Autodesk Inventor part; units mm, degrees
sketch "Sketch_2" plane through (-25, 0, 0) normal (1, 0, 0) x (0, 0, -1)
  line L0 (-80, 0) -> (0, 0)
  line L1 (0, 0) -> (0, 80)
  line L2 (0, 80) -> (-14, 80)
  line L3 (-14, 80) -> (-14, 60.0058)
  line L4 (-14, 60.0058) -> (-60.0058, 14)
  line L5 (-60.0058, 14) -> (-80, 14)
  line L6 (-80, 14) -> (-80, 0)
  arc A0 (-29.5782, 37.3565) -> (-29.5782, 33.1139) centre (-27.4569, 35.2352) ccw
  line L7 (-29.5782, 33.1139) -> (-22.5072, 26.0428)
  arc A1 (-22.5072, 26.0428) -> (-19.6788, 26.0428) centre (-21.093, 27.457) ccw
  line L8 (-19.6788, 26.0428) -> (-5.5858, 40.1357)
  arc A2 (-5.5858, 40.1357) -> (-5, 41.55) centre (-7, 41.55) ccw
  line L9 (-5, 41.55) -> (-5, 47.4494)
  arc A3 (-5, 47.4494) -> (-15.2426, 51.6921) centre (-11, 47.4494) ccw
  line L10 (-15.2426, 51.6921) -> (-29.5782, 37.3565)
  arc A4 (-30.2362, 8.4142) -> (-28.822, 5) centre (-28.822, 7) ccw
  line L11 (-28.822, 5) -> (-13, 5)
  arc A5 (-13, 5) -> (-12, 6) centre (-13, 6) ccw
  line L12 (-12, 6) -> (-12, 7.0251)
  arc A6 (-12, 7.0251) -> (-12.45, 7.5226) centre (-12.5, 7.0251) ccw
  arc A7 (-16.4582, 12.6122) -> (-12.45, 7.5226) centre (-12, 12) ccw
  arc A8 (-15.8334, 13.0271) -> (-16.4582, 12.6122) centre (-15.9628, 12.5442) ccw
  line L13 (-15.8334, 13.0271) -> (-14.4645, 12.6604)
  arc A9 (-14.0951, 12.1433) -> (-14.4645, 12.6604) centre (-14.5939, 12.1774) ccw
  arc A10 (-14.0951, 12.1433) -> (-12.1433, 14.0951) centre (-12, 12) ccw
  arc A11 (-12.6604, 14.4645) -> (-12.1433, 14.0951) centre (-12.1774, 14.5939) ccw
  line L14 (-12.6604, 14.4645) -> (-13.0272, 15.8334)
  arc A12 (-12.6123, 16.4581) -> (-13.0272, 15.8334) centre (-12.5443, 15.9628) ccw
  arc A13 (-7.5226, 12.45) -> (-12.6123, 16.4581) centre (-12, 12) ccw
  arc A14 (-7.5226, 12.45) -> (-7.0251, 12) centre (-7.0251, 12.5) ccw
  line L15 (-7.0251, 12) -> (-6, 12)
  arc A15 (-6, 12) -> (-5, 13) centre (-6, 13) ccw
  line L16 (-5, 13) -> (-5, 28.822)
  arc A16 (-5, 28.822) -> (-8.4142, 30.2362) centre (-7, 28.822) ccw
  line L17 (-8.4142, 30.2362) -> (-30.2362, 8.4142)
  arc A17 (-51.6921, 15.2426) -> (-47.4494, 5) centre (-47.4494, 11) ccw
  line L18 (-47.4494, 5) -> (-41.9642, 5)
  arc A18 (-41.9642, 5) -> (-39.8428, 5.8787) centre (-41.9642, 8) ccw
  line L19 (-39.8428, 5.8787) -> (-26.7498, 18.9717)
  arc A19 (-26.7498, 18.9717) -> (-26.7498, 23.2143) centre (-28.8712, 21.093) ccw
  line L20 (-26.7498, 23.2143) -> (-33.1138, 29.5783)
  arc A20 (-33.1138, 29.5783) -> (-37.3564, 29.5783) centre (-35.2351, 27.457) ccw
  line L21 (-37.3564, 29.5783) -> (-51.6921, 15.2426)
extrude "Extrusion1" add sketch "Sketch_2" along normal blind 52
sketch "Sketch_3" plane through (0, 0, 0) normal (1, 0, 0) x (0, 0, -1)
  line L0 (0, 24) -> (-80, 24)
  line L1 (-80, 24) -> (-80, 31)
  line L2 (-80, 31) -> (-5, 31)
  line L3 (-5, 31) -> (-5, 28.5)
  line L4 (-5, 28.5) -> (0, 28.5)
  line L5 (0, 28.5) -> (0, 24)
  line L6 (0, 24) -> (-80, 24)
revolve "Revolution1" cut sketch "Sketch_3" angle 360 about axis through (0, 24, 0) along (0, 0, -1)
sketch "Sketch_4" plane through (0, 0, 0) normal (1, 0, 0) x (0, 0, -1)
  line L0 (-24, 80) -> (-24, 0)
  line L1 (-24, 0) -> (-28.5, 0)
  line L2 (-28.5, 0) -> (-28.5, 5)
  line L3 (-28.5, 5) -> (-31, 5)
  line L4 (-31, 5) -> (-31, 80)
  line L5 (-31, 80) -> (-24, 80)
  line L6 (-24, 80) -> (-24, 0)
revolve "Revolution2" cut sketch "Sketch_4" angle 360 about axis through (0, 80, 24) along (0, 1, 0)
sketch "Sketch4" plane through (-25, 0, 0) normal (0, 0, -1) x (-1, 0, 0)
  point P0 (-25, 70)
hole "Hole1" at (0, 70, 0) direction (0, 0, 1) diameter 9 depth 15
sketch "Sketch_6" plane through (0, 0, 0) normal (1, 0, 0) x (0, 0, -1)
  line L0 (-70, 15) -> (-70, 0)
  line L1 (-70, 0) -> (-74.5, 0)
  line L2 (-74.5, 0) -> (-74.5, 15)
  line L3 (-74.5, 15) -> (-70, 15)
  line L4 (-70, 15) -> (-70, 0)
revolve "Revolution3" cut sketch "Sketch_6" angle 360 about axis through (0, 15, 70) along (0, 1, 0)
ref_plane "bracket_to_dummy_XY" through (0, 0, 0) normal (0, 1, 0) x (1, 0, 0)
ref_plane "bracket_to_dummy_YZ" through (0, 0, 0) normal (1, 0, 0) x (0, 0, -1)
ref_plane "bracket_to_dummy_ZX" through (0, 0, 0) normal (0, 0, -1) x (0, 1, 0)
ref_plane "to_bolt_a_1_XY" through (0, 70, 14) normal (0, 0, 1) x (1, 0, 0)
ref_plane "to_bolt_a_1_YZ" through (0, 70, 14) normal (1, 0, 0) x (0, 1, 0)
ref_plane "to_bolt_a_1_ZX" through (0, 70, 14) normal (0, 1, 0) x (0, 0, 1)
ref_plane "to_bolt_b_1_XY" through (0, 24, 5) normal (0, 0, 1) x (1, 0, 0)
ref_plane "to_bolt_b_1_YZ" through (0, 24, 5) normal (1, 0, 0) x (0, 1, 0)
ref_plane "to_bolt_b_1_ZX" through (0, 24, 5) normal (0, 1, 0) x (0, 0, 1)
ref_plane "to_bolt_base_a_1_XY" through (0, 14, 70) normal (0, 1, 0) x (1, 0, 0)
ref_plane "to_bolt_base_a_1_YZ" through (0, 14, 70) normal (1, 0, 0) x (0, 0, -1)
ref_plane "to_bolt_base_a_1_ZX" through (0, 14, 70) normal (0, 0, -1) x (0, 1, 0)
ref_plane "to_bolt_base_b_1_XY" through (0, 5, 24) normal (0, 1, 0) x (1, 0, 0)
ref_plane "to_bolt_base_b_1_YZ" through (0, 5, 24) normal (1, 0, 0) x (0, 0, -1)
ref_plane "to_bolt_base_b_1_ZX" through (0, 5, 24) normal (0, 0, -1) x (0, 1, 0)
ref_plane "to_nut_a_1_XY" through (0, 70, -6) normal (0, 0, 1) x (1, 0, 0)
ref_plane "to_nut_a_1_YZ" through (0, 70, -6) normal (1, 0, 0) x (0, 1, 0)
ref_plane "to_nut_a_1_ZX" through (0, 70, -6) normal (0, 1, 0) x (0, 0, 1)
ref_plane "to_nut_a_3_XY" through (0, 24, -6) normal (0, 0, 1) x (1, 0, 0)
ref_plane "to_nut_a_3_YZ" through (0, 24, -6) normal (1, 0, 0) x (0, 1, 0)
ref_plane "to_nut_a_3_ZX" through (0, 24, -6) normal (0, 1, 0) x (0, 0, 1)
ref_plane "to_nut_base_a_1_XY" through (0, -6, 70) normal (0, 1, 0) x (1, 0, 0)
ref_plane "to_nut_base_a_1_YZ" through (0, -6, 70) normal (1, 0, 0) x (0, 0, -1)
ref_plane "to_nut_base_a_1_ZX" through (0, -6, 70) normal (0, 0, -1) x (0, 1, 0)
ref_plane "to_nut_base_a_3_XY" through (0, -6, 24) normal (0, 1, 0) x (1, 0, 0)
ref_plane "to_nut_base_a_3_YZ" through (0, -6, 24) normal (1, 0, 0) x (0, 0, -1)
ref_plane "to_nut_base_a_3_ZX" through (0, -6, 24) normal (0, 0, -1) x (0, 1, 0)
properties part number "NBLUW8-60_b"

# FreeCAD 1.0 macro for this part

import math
import FreeCAD as App
import Part
import Sketcher
Q = App.Units.Quantity

doc = App.newDocument("Part")
params = doc.addObject("Spreadsheet::Sheet", "Params")
for row, (alias, value) in enumerate([
    ("sketch1_radius", "6 mm"),
    ("sketch1_radius2", "3 mm"),
    ("sketch1_radius3", "2 mm"),
    ("sketch1_radius4", "1 mm"),
    ("sketch1_radius5", "0.5 mm"),
    ("pad1_length", "52 mm"),
    ("sketch2_width", "7 mm"),
    ("sketch2_height", "80 mm"),
    ("sketch2_height2", "5 mm"),
    ("sketch2_width2", "4.5 mm"),
    ("groove_angle", "360 deg"),
    ("sketch3_width", "80 mm"),
    ("sketch3_width2", "75 mm"),
    ("sketch3_height", "7 mm"),
    ("sketch3_height2", "2.5 mm"),
    ("groove2_angle", "360 deg"),
    ("sketch4_diameter", "9 mm"),
    ("hole_diameter", "9 mm"),
    ("hole_depth", "15 mm"),
    ("sketch5_width", "15 mm"),
    ("sketch5_height", "4.5 mm"),
    ("groove3_angle", "360 deg"),
], start=1):
    params.set(f"A{row}", alias)
    params.set(f"B{row}", "=" + value)
    params.setAlias(f"B{row}", alias)

body = doc.addObject("PartDesign::Body", "Body")

# Sketch on YZ plane
sketch1 = body.newObject("Sketcher::SketchObject", "Sketch")
sketch1.AttachmentSupport = (doc.getObject("YZ_Plane"), [""])
sketch1.MapMode = "FlatFace"
sketch1.AttachmentOffset = App.Placement(App.Vector(0, 0, -25), App.Rotation())
sketch1.addGeometry(Part.LineSegment(App.Vector(14, 80, 0), App.Vector(0, 80, 0)), False)
sketch1.addGeometry(Part.LineSegment(App.Vector(0, 80, 0), App.Vector(0, 0, 0)), False)
sketch1.addGeometry(Part.LineSegment(App.Vector(0, 0, 0), App.Vector(80, 0, 0)), False)
sketch1.addGeometry(Part.LineSegment(App.Vector(80, 0, 0), App.Vector(80, 14, 0)), False)
sketch1.addGeometry(Part.LineSegment(App.Vector(80, 14, 0), App.Vector(60.01, 14, 0)), False)
sketch1.addGeometry(Part.LineSegment(App.Vector(60.01, 14, 0), App.Vector(14, 60.01, 0)), False)
sketch1.addGeometry(Part.LineSegment(App.Vector(14, 60.01, 0), App.Vector(14, 80, 0)), False)
sketch1.addGeometry(Part.ArcOfCircle(Part.Circle(App.Vector(11, 47.45, 0), App.Vector(0, 0, 1), 6), math.radians(45), math.radians(180)), False)
sketch1.addGeometry(Part.LineSegment(App.Vector(15.24, 51.69, 0), App.Vector(29.58, 37.36, 0)), False)
sketch1.addGeometry(Part.ArcOfCircle(Part.Circle(App.Vector(27.46, 35.24, 0), App.Vector(0, 0, 1), 3), math.radians(-45), math.radians(45)), False)
sketch1.addGeometry(Part.LineSegment(App.Vector(29.58, 33.11, 0), App.Vector(23.21, 26.75, 0)), False)
sketch1.addGeometry(Part.ArcOfCircle(Part.Circle(App.Vector(21.09, 28.87, 0), App.Vector(0, 0, 1), 3), math.radians(-135), math.radians(-45)), False)
sketch1.addGeometry(Part.LineSegment(App.Vector(18.97, 26.75, 0), App.Vector(5.88, 39.84, 0)), False)
sketch1.addGeometry(Part.ArcOfCircle(Part.Circle(App.Vector(8, 41.96, 0), App.Vector(0, 0, 1), 3), math.radians(180), math.radians(225)), False)
sketch1.addGeometry(Part.LineSegment(App.Vector(5, 41.96, 0), App.Vector(5, 47.45, 0)), False)
sketch1.addGeometry(Part.ArcOfCircle(Part.Circle(App.Vector(7, 28.82, 0), App.Vector(0, 0, 1), 2), math.radians(45), math.radians(180)), False)
sketch1.addGeometry(Part.LineSegment(App.Vector(8.41, 30.24, 0), App.Vector(30.24, 8.41, 0)), False)
sketch1.addGeometry(Part.ArcOfCircle(Part.Circle(App.Vector(28.82, 7, 0), App.Vector(0, 0, 1), 2), math.radians(-90), math.radians(45)), False)
sketch1.addGeometry(Part.LineSegment(App.Vector(28.82, 5, 0), App.Vector(13, 5, 0)), False)
sketch1.addGeometry(Part.ArcOfCircle(Part.Circle(App.Vector(13, 6, 0), App.Vector(0, 0, 1), 1), math.radians(180), math.radians(270)), False)
sketch1.addGeometry(Part.LineSegment(App.Vector(12, 6, 0), App.Vector(12, 7.03, 0)), False)
sketch1.addGeometry(Part.ArcOfCircle(Part.Circle(App.Vector(12.5, 7.03, 0), App.Vector(0, 0, 1), 0.5), math.radians(96), math.radians(180)), False)
sketch1.addGeometry(Part.ArcOfCircle(Part.Circle(App.Vector(12, 12, 0), App.Vector(0, 0, 1), 4.5), math.radians(-84), math.radians(8)), False)
sketch1.addGeometry(Part.ArcOfCircle(Part.Circle(App.Vector(15.96, 12.54, 0), App.Vector(0, 0, 1), 0.5), math.radians(8), math.radians(105)), False)
sketch1.addGeometry(Part.LineSegment(App.Vector(15.83, 13.03, 0), App.Vector(14.46, 12.66, 0)), False)
sketch1.addGeometry(Part.ArcOfCircle(Part.Circle(App.Vector(14.59, 12.18, 0), App.Vector(0, 0, 1), 0.5), math.radians(105), math.radians(184)), False)
sketch1.addGeometry(Part.ArcOfCircle(Part.Circle(App.Vector(12, 12, 0), App.Vector(0, 0, 1), 2.1), math.radians(86), math.radians(364)), False)
sketch1.addGeometry(Part.ArcOfCircle(Part.Circle(App.Vector(12.18, 14.59, 0), App.Vector(0, 0, 1), 0.5), math.radians(-94), math.radians(-15)), False)
sketch1.addGeometry(Part.LineSegment(App.Vector(12.66, 14.46, 0), App.Vector(13.03, 15.83, 0)), False)
sketch1.addGeometry(Part.ArcOfCircle(Part.Circle(App.Vector(12.54, 15.96, 0), App.Vector(0, 0, 1), 0.5), math.radians(-15), math.radians(82)), False)
sketch1.addGeometry(Part.ArcOfCircle(Part.Circle(App.Vector(12, 12, 0), App.Vector(0, 0, 1), 4.5), math.radians(82), math.radians(174)), False)
sketch1.addGeometry(Part.ArcOfCircle(Part.Circle(App.Vector(7.03, 12.5, 0), App.Vector(0, 0, 1), 0.5), math.radians(-90), math.radians(-6)), False)
sketch1.addGeometry(Part.LineSegment(App.Vector(7.03, 12, 0), App.Vector(6, 12, 0)), False)
sketch1.addGeometry(Part.ArcOfCircle(Part.Circle(App.Vector(6, 13, 0), App.Vector(0, 0, 1), 1), math.radians(180), math.radians(270)), False)
sketch1.addGeometry(Part.LineSegment(App.Vector(5, 13, 0), App.Vector(5, 28.82, 0)), False)
sketch1.addGeometry(Part.ArcOfCircle(Part.Circle(App.Vector(35.24, 27.46, 0), App.Vector(0, 0, 1), 3), math.radians(45), math.radians(135)), False)
sketch1.addGeometry(Part.LineSegment(App.Vector(37.36, 29.58, 0), App.Vector(51.69, 15.24, 0)), False)
sketch1.addGeometry(Part.ArcOfCircle(Part.Circle(App.Vector(47.45, 11, 0), App.Vector(0, 0, 1), 6), math.radians(-90), math.radians(45)), False)
sketch1.addGeometry(Part.LineSegment(App.Vector(47.45, 5, 0), App.Vector(41.55, 5, 0)), False)
sketch1.addGeometry(Part.ArcOfCircle(Part.Circle(App.Vector(41.55, 7, 0), App.Vector(0, 0, 1), 2), math.radians(-135), math.radians(-90)), False)
sketch1.addGeometry(Part.LineSegment(App.Vector(40.14, 5.59, 0), App.Vector(26.04, 19.68, 0)), False)
sketch1.addGeometry(Part.ArcOfCircle(Part.Circle(App.Vector(27.46, 21.09, 0), App.Vector(0, 0, 1), 2), math.radians(135), math.radians(225)), False)
sketch1.addGeometry(Part.LineSegment(App.Vector(26.04, 22.51, 0), App.Vector(33.11, 29.58, 0)), False)
sketch1.addConstraint(Sketcher.Constraint("Coincident", 0, 2, 1, 1))
sketch1.addConstraint(Sketcher.Constraint("Coincident", 1, 2, 2, 1))
sketch1.addConstraint(Sketcher.Constraint("Coincident", 2, 2, 3, 1))
sketch1.addConstraint(Sketcher.Constraint("Coincident", 3, 2, 4, 1))
sketch1.addConstraint(Sketcher.Constraint("Coincident", 4, 2, 5, 1))
sketch1.addConstraint(Sketcher.Constraint("Coincident", 5, 2, 6, 1))
sketch1.addConstraint(Sketcher.Constraint("Coincident", 6, 2, 0, 1))
sketch1.addConstraint(Sketcher.Constraint("Tangent", 7, 1, 8, 1))
sketch1.addConstraint(Sketcher.Constraint("Tangent", 8, 2, 9, 2))
sketch1.addConstraint(Sketcher.Constraint("Tangent", 9, 1, 10, 1))
sketch1.addConstraint(Sketcher.Constraint("Tangent", 10, 2, 11, 2))
sketch1.addConstraint(Sketcher.Constraint("Tangent", 11, 1, 12, 1))
sketch1.addConstraint(Sketcher.Constraint("Tangent", 12, 2, 13, 2))
sketch1.addConstraint(Sketcher.Constraint("Tangent", 13, 1, 14, 1))
sketch1.addConstraint(Sketcher.Constraint("Tangent", 14, 2, 7, 2))
sketch1.addConstraint(Sketcher.Constraint("Tangent", 15, 1, 16, 1))
sketch1.addConstraint(Sketcher.Constraint("Tangent", 16, 2, 17, 2))
sketch1.addConstraint(Sketcher.Constraint("Tangent", 17, 1, 18, 1))
sketch1.addConstraint(Sketcher.Constraint("Tangent", 18, 2, 19, 2))
sketch1.addConstraint(Sketcher.Constraint("Tangent", 19, 1, 20, 1))
sketch1.addConstraint(Sketcher.Constraint("Tangent", 20, 2, 21, 2))
sketch1.addConstraint(Sketcher.Constraint("Tangent", 21, 1, 22, 1))
sketch1.addConstraint(Sketcher.Constraint("Tangent", 22, 2, 23, 1))
sketch1.addConstraint(Sketcher.Constraint("Tangent", 23, 2, 24, 1))
sketch1.addConstraint(Sketcher.Constraint("Tangent", 24, 2, 25, 1))
sketch1.addConstraint(Sketcher.Constraint("Tangent", 25, 2, 26, 2))
sketch1.addConstraint(Sketcher.Constraint("Tangent", 26, 1, 27, 1))
sketch1.addConstraint(Sketcher.Constraint("Tangent", 27, 2, 28, 1))
sketch1.addConstraint(Sketcher.Constraint("Tangent", 28, 2, 29, 1))
sketch1.addConstraint(Sketcher.Constraint("Tangent", 29, 2, 30, 1))
sketch1.addConstraint(Sketcher.Constraint("Tangent", 30, 2, 31, 2))
sketch1.addConstraint(Sketcher.Constraint("Tangent", 31, 1, 32, 1))
sketch1.addConstraint(Sketcher.Constraint("Tangent", 32, 2, 33, 2))
sketch1.addConstraint(Sketcher.Constraint("Tangent", 33, 1, 34, 1))
sketch1.addConstraint(Sketcher.Constraint("Tangent", 34, 2, 15, 2))
sketch1.addConstraint(Sketcher.Constraint("Tangent", 35, 1, 36, 1))
sketch1.addConstraint(Sketcher.Constraint("Tangent", 36, 2, 37, 2))
sketch1.addConstraint(Sketcher.Constraint("Tangent", 37, 1, 38, 1))
sketch1.addConstraint(Sketcher.Constraint("Tangent", 38, 2, 39, 2))
sketch1.addConstraint(Sketcher.Constraint("Tangent", 39, 1, 40, 1))
sketch1.addConstraint(Sketcher.Constraint("Tangent", 40, 2, 41, 2))
sketch1.addConstraint(Sketcher.Constraint("Tangent", 41, 1, 42, 1))
sketch1.addConstraint(Sketcher.Constraint("Tangent", 42, 2, 35, 2))
sketch1.addConstraint(Sketcher.Constraint("Horizontal", 0))
sketch1.addConstraint(Sketcher.Constraint("Vertical", 1))
sketch1.addConstraint(Sketcher.Constraint("Horizontal", 2))
sketch1.addConstraint(Sketcher.Constraint("Vertical", 3))
sketch1.addConstraint(Sketcher.Constraint("Horizontal", 4))
sketch1.addConstraint(Sketcher.Constraint("Vertical", 6))
sketch1.addConstraint(Sketcher.Constraint("Vertical", 14))
sketch1.addConstraint(Sketcher.Constraint("Horizontal", 18))
sketch1.addConstraint(Sketcher.Constraint("Vertical", 20))
sketch1.addConstraint(Sketcher.Constraint("Horizontal", 32))
sketch1.addConstraint(Sketcher.Constraint("Vertical", 34))
sketch1.addConstraint(Sketcher.Constraint("Horizontal", 38))
sketch1.addConstraint(Sketcher.Constraint("Coincident", 1, 2, -1, 1))
sketch1.addConstraint(Sketcher.Constraint("Coincident", 26, 3, 22, 3))
sketch1.addConstraint(Sketcher.Constraint("Coincident", 30, 3, 22, 3))
sketch1.addConstraint(Sketcher.Constraint("Equal", 9, 11))
sketch1.addConstraint(Sketcher.Constraint("Equal", 11, 13))
sketch1.addConstraint(Sketcher.Constraint("Equal", 15, 17))
sketch1.addConstraint(Sketcher.Constraint("Equal", 21, 23))
sketch1.addConstraint(Sketcher.Constraint("Equal", 23, 25))
sketch1.addConstraint(Sketcher.Constraint("Equal", 25, 27))
sketch1.addConstraint(Sketcher.Constraint("Equal", 27, 29))
sketch1.addConstraint(Sketcher.Constraint("Equal", 22, 30))
sketch1.addConstraint(Sketcher.Constraint("Equal", 29, 31))
sketch1.addConstraint(Sketcher.Constraint("Equal", 19, 33))
sketch1.addConstraint(Sketcher.Constraint("Equal", 13, 35))
sketch1.addConstraint(Sketcher.Constraint("Equal", 7, 37))
sketch1.addConstraint(Sketcher.Constraint("Equal", 17, 39))
sketch1.addConstraint(Sketcher.Constraint("Equal", 39, 41))
sketch1.addConstraint(Sketcher.Constraint("Parallel", 5, 8))
sketch1.addConstraint(Sketcher.Constraint("Perpendicular", 8, 10))
sketch1.addConstraint(Sketcher.Constraint("Perpendicular", 10, 12))
sketch1.addConstraint(Sketcher.Constraint("Parallel", 12, 16))
sketch1.addConstraint(Sketcher.Constraint("Parallel", 16, 36))
sketch1.addConstraint(Sketcher.Constraint("Parallel", 36, 40))
sketch1.addConstraint(Sketcher.Constraint("Perpendicular", 40, 42))
sketch1.addConstraint(Sketcher.Constraint("Horizontal", 17, 3, 39, 3))
sketch1.addConstraint(Sketcher.Constraint("Horizontal", 10, 2, 11, 1))
sketch1.addConstraint(Sketcher.Constraint("Horizontal", 30, 3, 31, 1))
sketch1.addConstraint(Sketcher.Constraint("Vertical", 9, 3, 41, 3))
sketch1.addConstraint(Sketcher.Constraint("Vertical", 30, 3, 19, 1))
sketch1.addConstraint(Sketcher.Constraint("Vertical", 14, 2, 33, 1))
sketch1.addConstraint(Sketcher.Constraint("Equal", 2, 1))
sketch1.addConstraint(Sketcher.Constraint("Equal", 0, 3))
sketch1.addConstraint(Sketcher.Constraint("Equal", 32, 20))
sketch1.addConstraint(Sketcher.Constraint("Equal", 24, 28))
sketch1.addConstraint(Sketcher.Constraint("Equal", 8, 36))
sketch1.addConstraint(Sketcher.Constraint("Radius", 7, Q("6 mm")))
sketch1.addConstraint(Sketcher.Constraint("Radius", 9, Q("3 mm")))
sketch1.addConstraint(Sketcher.Constraint("Radius", 15, Q("2 mm")))
sketch1.addConstraint(Sketcher.Constraint("Radius", 19, Q("1 mm")))
sketch1.addConstraint(Sketcher.Constraint("Radius", 21, Q("0.5 mm")))
sketch1.addConstraint(Sketcher.Constraint("Radius", 22, Q("4.5 mm")))
sketch1.addConstraint(Sketcher.Constraint("Radius", 26, Q("2.1 mm")))
sketch1.addConstraint(Sketcher.Constraint("DistanceX", 0, 2, 0, 1, Q("14 mm")))
sketch1.addConstraint(Sketcher.Constraint("DistanceX", 2, 1, 2, 2, Q("80 mm")))
sketch1.addConstraint(Sketcher.Constraint("Angle", 24, Q("-164.9998 deg")))
sketch1.addConstraint(Sketcher.Constraint("Distance", 10, Q("9 mm")))
sketch1.addConstraint(Sketcher.Constraint("Distance", 42, Q("10 mm")))
sketch1.addConstraint(Sketcher.Constraint("DistanceX", -1, 1, 7, 3, Q("11 mm")))
sketch1.addConstraint(Sketcher.Constraint("DistanceY", -1, 1, 17, 3, Q("7 mm")))
sketch1.addConstraint(Sketcher.Constraint("DistanceX", -1, 1, 19, 3, Q("13 mm")))
sketch1.addConstraint(Sketcher.Constraint("DistanceX", 18, 2, 18, 1, Q("15.822 mm")))
sketch1.addConstraint(Sketcher.Constraint("DistanceX", -1, 1, 39, 3, Q("41.55 mm")))
sketch1.addConstraint(Sketcher.Constraint("Distance", 5, Q("65.062 mm")))
sketch1.addConstraint(Sketcher.Constraint("DistanceY", -1, 1, 9, 3, Q("35.235 mm")))
sketch1.addConstraint(Sketcher.Constraint("DistanceX", -1, 1, 25, 3, Q("14.594 mm")))
sketch1.addConstraint(Sketcher.Constraint("DistanceY", -1, 1, 27, 3, Q("14.594 mm")))
sketch1.setExpression("Constraints[90]", "Params.sketch1_radius")
sketch1.setExpression("Constraints[91]", "Params.sketch1_radius2")
sketch1.setExpression("Constraints[92]", "Params.sketch1_radius3")
sketch1.setExpression("Constraints[93]", "Params.sketch1_radius4")
sketch1.setExpression("Constraints[94]", "Params.sketch1_radius5")
pad1 = body.newObject("PartDesign::Pad", "Pad")
pad1.Profile = sketch1
pad1.setExpression("Length", "Params.pad1_length")

# Sketch on YZ plane
sketch2 = body.newObject("Sketcher::SketchObject", "Sketch001")
sketch2.AttachmentSupport = (doc.getObject("YZ_Plane"), [""])
sketch2.MapMode = "FlatFace"
sketch2.addGeometry(Part.LineSegment(App.Vector(24, 80, 0), App.Vector(24, 0, 0)), False)
sketch2.addGeometry(Part.LineSegment(App.Vector(24, 0, 0), App.Vector(28.5, 0, 0)), False)
sketch2.addGeometry(Part.LineSegment(App.Vector(28.5, 0, 0), App.Vector(28.5, 5, 0)), False)
sketch2.addGeometry(Part.LineSegment(App.Vector(28.5, 5, 0), App.Vector(31, 5, 0)), False)
sketch2.addGeometry(Part.LineSegment(App.Vector(31, 5, 0), App.Vector(31, 80, 0)), False)
sketch2.addGeometry(Part.LineSegment(App.Vector(31, 80, 0), App.Vector(24, 80, 0)), False)
sketch2.addGeometry(Part.LineSegment(App.Vector(24, 80, 0), App.Vector(24, 0, 0)), True)  # axis
sketch2.addConstraint(Sketcher.Constraint("Coincident", 0, 2, 1, 1))
sketch2.addConstraint(Sketcher.Constraint("Coincident", 1, 2, 2, 1))
sketch2.addConstraint(Sketcher.Constraint("Coincident", 2, 2, 3, 1))
sketch2.addConstraint(Sketcher.Constraint("Coincident", 3, 2, 4, 1))
sketch2.addConstraint(Sketcher.Constraint("Coincident", 4, 2, 5, 1))
sketch2.addConstraint(Sketcher.Constraint("Coincident", 5, 2, 0, 1))
sketch2.addConstraint(Sketcher.Constraint("Vertical", 0))
sketch2.addConstraint(Sketcher.Constraint("Horizontal", 1))
sketch2.addConstraint(Sketcher.Constraint("Vertical", 2))
sketch2.addConstraint(Sketcher.Constraint("Horizontal", 3))
sketch2.addConstraint(Sketcher.Constraint("Vertical", 4))
sketch2.addConstraint(Sketcher.Constraint("Horizontal", 5))
sketch2.addConstraint(Sketcher.Constraint("Vertical", 6))
sketch2.addConstraint(Sketcher.Constraint("Coincident", 6, 1, 5, 2))
sketch2.addConstraint(Sketcher.Constraint("PointOnObject", 0, 2, -1))
sketch2.addConstraint(Sketcher.Constraint("PointOnObject", 6, 2, -1))
sketch2.addConstraint(Sketcher.Constraint("DistanceX", 5, 2, 5, 1, Q("7 mm")))
sketch2.addConstraint(Sketcher.Constraint("DistanceY", 0, 2, 0, 1, Q("80 mm")))
sketch2.addConstraint(Sketcher.Constraint("DistanceY", 2, 1, 2, 2, Q("5 mm")))
sketch2.addConstraint(Sketcher.Constraint("DistanceX", 1, 1, 1, 2, Q("4.5 mm")))
sketch2.addConstraint(Sketcher.Constraint("DistanceX", -1, 1, 0, 2, Q("24 mm")))
sketch2.setExpression("Constraints[16]", "Params.sketch2_width")
sketch2.setExpression("Constraints[17]", "Params.sketch2_height")
sketch2.setExpression("Constraints[18]", "Params.sketch2_height2")
sketch2.setExpression("Constraints[19]", "Params.sketch2_width2")
groove = body.newObject("PartDesign::Groove", "Groove")
groove.Profile = sketch2
groove.ReferenceAxis = (sketch2, ["Axis0"])
groove.setExpression("Angle", "Params.groove_angle")

# Sketch on YZ plane
sketch3 = body.newObject("Sketcher::SketchObject", "Sketch002")
sketch3.AttachmentSupport = (doc.getObject("YZ_Plane"), [""])
sketch3.MapMode = "FlatFace"
sketch3.addGeometry(Part.LineSegment(App.Vector(0, 24, 0), App.Vector(80, 24, 0)), False)
sketch3.addGeometry(Part.LineSegment(App.Vector(80, 24, 0), App.Vector(80, 31, 0)), False)
sketch3.addGeometry(Part.LineSegment(App.Vector(80, 31, 0), App.Vector(5, 31, 0)), False)
sketch3.addGeometry(Part.LineSegment(App.Vector(5, 31, 0), App.Vector(5, 28.5, 0)), False)
sketch3.addGeometry(Part.LineSegment(App.Vector(5, 28.5, 0), App.Vector(0, 28.5, 0)), False)
sketch3.addGeometry(Part.LineSegment(App.Vector(0, 28.5, 0), App.Vector(0, 24, 0)), False)
sketch3.addGeometry(Part.LineSegment(App.Vector(0, 24, 0), App.Vector(80, 24, 0)), True)  # axis
sketch3.addConstraint(Sketcher.Constraint("Coincident", 0, 2, 1, 1))
sketch3.addConstraint(Sketcher.Constraint("Coincident", 1, 2, 2, 1))
sketch3.addConstraint(Sketcher.Constraint("Coincident", 2, 2, 3, 1))
sketch3.addConstraint(Sketcher.Constraint("Coincident", 3, 2, 4, 1))
sketch3.addConstraint(Sketcher.Constraint("Coincident", 4, 2, 5, 1))
sketch3.addConstraint(Sketcher.Constraint("Coincident", 5, 2, 0, 1))
sketch3.addConstraint(Sketcher.Constraint("Horizontal", 0))
sketch3.addConstraint(Sketcher.Constraint("Vertical", 1))
sketch3.addConstraint(Sketcher.Constraint("Horizontal", 2))
sketch3.addConstraint(Sketcher.Constraint("Vertical", 3))
sketch3.addConstraint(Sketcher.Constraint("Horizontal", 4))
sketch3.addConstraint(Sketcher.Constraint("Vertical", 5))
sketch3.addConstraint(Sketcher.Constraint("Horizontal", 6))
sketch3.addConstraint(Sketcher.Constraint("Coincident", 6, 1, 5, 2))
sketch3.addConstraint(Sketcher.Constraint("PointOnObject", 4, 2, -2))
sketch3.addConstraint(Sketcher.Constraint("Vertical", 1, 2, 6, 2))
sketch3.addConstraint(Sketcher.Constraint("DistanceX", 0, 1, 0, 2, Q("80 mm")))
sketch3.addConstraint(Sketcher.Constraint("DistanceX", 2, 2, 2, 1, Q("75 mm")))
sketch3.addConstraint(Sketcher.Constraint("DistanceY", 1, 1, 1, 2, Q("7 mm")))
sketch3.addConstraint(Sketcher.Constraint("DistanceY", 3, 2, 3, 1, Q("2.5 mm")))
sketch3.addConstraint(Sketcher.Constraint("DistanceY", -1, 1, 0, 2, Q("24 mm")))
sketch3.setExpression("Constraints[16]", "Params.sketch3_width")
sketch3.setExpression("Constraints[17]", "Params.sketch3_width2")
sketch3.setExpression("Constraints[18]", "Params.sketch3_height")
sketch3.setExpression("Constraints[19]", "Params.sketch3_height2")
groove2 = body.newObject("PartDesign::Groove", "Groove001")
groove2.Profile = sketch3
groove2.ReferenceAxis = (sketch3, ["Axis0"])
groove2.setExpression("Angle", "Params.groove2_angle")

# Sketch on XY plane
sketch4 = body.newObject("Sketcher::SketchObject", "Sketch003")
sketch4.AttachmentSupport = (doc.getObject("XY_Plane"), [""])
sketch4.MapMode = "FlatFace"
sketch4.addGeometry(Part.Circle(App.Vector(0, 70, 0), App.Vector(0, 0, 1), 4.5), False)
sketch4.addConstraint(Sketcher.Constraint("PointOnObject", 0, 3, -2))
sketch4.addConstraint(Sketcher.Constraint("Diameter", 0, Q("9 mm")))
sketch4.addConstraint(Sketcher.Constraint("DistanceY", -1, 1, 0, 3, Q("70 mm")))
sketch4.setExpression("Constraints[1]", "Params.sketch4_diameter")
doc.recompute()
hole = body.newObject("PartDesign::Hole", "Hole")
hole.Profile = sketch4
hole.ThreadType = "None"
hole.setExpression("Diameter", "Params.hole_diameter")
hole.DepthType = "Dimension"
hole.setExpression("Depth", "Params.hole_depth")
hole.DrillPoint = "Flat"
hole.Reversed = True

# Sketch on YZ plane
sketch5 = body.newObject("Sketcher::SketchObject", "Sketch004")
sketch5.AttachmentSupport = (doc.getObject("YZ_Plane"), [""])
sketch5.MapMode = "FlatFace"
sketch5.addGeometry(Part.LineSegment(App.Vector(0, 70, 0), App.Vector(15, 70, 0)), False)
sketch5.addGeometry(Part.LineSegment(App.Vector(15, 70, 0), App.Vector(15, 74.5, 0)), False)
sketch5.addGeometry(Part.LineSegment(App.Vector(15, 74.5, 0), App.Vector(0, 74.5, 0)), False)
sketch5.addGeometry(Part.LineSegment(App.Vector(0, 74.5, 0), App.Vector(0, 70, 0)), False)
sketch5.addGeometry(Part.LineSegment(App.Vector(0, 70, 0), App.Vector(15, 70, 0)), True)  # axis
sketch5.addConstraint(Sketcher.Constraint("Coincident", 0, 2, 1, 1))
sketch5.addConstraint(Sketcher.Constraint("Coincident", 1, 2, 2, 1))
sketch5.addConstraint(Sketcher.Constraint("Coincident", 2, 2, 3, 1))
sketch5.addConstraint(Sketcher.Constraint("Coincident", 3, 2, 0, 1))
sketch5.addConstraint(Sketcher.Constraint("Horizontal", 0))
sketch5.addConstraint(Sketcher.Constraint("Vertical", 1))
sketch5.addConstraint(Sketcher.Constraint("Horizontal", 2))
sketch5.addConstraint(Sketcher.Constraint("Vertical", 3))
sketch5.addConstraint(Sketcher.Constraint("Horizontal", 4))
sketch5.addConstraint(Sketcher.Constraint("Coincident", 4, 1, 3, 2))
sketch5.addConstraint(Sketcher.Constraint("PointOnObject", 2, 2, -2))
sketch5.addConstraint(Sketcher.Constraint("Vertical", 1, 2, 4, 2))
sketch5.addConstraint(Sketcher.Constraint("DistanceX", 0, 1, 0, 2, Q("15 mm")))
sketch5.addConstraint(Sketcher.Constraint("DistanceY", 1, 1, 1, 2, Q("4.5 mm")))
sketch5.addConstraint(Sketcher.Constraint("DistanceY", -1, 1, 0, 2, Q("70 mm")))
sketch5.setExpression("Constraints[12]", "Params.sketch5_width")
sketch5.setExpression("Constraints[13]", "Params.sketch5_height")
groove3 = body.newObject("PartDesign::Groove", "Groove002")
groove3.Profile = sketch5
groove3.ReferenceAxis = (sketch5, ["Axis0"])
groove3.setExpression("Angle", "Params.groove3_angle")

doc.recompute()
